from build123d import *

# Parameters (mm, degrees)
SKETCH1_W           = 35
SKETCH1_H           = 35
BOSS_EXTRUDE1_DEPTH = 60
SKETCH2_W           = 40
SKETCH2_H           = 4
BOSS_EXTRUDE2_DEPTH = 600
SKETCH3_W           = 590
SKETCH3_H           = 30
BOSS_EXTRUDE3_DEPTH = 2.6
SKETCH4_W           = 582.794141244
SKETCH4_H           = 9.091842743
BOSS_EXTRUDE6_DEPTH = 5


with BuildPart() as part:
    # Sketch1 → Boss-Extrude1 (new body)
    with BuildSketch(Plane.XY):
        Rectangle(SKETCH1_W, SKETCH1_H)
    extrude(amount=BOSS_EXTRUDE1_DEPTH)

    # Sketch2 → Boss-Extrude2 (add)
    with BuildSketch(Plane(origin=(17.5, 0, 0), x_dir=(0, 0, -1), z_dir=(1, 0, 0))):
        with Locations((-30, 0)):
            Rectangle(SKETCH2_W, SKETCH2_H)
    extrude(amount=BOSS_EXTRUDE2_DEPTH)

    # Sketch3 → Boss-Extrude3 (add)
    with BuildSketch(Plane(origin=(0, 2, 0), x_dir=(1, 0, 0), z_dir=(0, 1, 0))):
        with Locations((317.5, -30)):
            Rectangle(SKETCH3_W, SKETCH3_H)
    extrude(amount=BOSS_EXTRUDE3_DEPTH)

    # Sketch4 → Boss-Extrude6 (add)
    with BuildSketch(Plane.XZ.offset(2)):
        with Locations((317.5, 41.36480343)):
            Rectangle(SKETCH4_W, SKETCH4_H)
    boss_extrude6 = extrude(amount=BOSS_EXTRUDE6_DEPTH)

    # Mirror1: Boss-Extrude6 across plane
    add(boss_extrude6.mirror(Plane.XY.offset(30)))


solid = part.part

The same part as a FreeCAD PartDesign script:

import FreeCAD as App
import Part
import Sketcher
from FreeCAD import Vector


def add_polygon(sketch, points):
    """Adds a closed chain of lines whose ends are joined by coincident constraints."""
    first, n = sketch.GeometryCount, len(points)
    for a, b in zip(points, points[1:] + points[:1]):
        sketch.addGeometry(Part.LineSegment(App.Vector(*a, 0), App.Vector(*b, 0)), False)
    for i in range(n):
        sketch.addConstraint(Sketcher.Constraint("Coincident", first + i, 2, first + (i + 1) % n, 1))

doc = App.newDocument("Part")
body = doc.addObject("PartDesign::Body", "Body")

sketch1 = doc.addObject("Sketcher::SketchObject", "Sketch")
body.addObject(sketch1)
sketch1.AttachmentSupport = (doc.XY_Plane, [""])
sketch1.MapMode = "FlatFace"
add_polygon(sketch1, [(-18, 18), (-18, -18), (18, -18), (18, 18)])
sketch1.addConstraint([
    Sketcher.Constraint("Vertical", 0),
    Sketcher.Constraint("Horizontal", 1),
    Sketcher.Constraint("Vertical", 2),
    Sketcher.Constraint("Horizontal", 3),
    Sketcher.Constraint("Symmetric", 0, 2, 2, 2, -1, 1),
    Sketcher.Constraint("Equal", 3, 0),
    Sketcher.Constraint("DistanceX", 1, 1, 1, 2, 35.0),
])
pad1 = doc.addObject("PartDesign::Pad", "Pad")
body.addObject(pad1)
pad1.Profile = sketch1
pad1.Length = 60

sketch2 = doc.addObject("Sketcher::SketchObject", "Sketch001")
body.addObject(sketch2)
sketch2.AttachmentSupport = (doc.YZ_Plane, [""])
sketch2.MapMode = "FlatFace"
sketch2.AttachmentOffset = App.Placement(Vector(0, 0, 17.5), App.Rotation())
add_polygon(sketch2, [(2, 50), (-2, 50), (-2, 10), (2, 10)])
sketch2.addConstraint([
    Sketcher.Constraint("Horizontal", 0),
    Sketcher.Constraint("Vertical", 1),
    Sketcher.Constraint("Horizontal", 2),
    Sketcher.Constraint("Vertical", 3),
    Sketcher.Constraint("DistanceX", 0, 2, 0, 1, 4.0),
    Sketcher.Constraint("DistanceY", 1, 2, 1, 1, 40.0),
    Sketcher.Constraint("DistanceX", 0, 2, -1, 1, 2.0),
    Sketcher.Constraint("DistanceY", -1, 1, 0, 2, 50.0),
])
pad2 = doc.addObject("PartDesign::Pad", "Pad001")
body.addObject(pad2)
pad2.Profile = sketch2
pad2.Length = 600

sketch3 = doc.addObject("Sketcher::SketchObject", "Sketch002")
body.addObject(sketch3)
sketch3.AttachmentSupport = (doc.XZ_Plane, [""])
sketch3.MapMode = "FlatFace"
sketch3.AttachmentOffset = App.Placement(Vector(0, 0, -2), App.Rotation())
add_polygon(sketch3, [(22, 15), (22, 45), (612, 45), (612, 15)])
sketch3.addConstraint([
    Sketcher.Constraint("Vertical", 0),
    Sketcher.Constraint("Horizontal", 1),
    Sketcher.Constraint("Vertical", 2),
    Sketcher.Constraint("Horizontal", 3),
    Sketcher.Constraint("DistanceX", 1, 1, 1, 2, 590.0),
    Sketcher.Constraint("DistanceY", 0, 1, 0, 2, 30.0),
    Sketcher.Constraint("DistanceY", -1, 1, 0, 2, 45.0),
    Sketcher.Constraint("DistanceX", -1, 1, 0, 2, 22.5),
])
pad3 = doc.addObject("PartDesign::Pad", "Pad002")
body.addObject(pad3)
pad3.Profile = sketch3
pad3.Length = 2.6
pad3.Reversed = True

sketch4 = doc.addObject("Sketcher::SketchObject", "Sketch003")
body.addObject(sketch4)
sketch4.AttachmentSupport = (doc.XZ_Plane, [""])
sketch4.MapMode = "FlatFace"
sketch4.AttachmentOffset = App.Placement(Vector(0, 0, 2), App.Rotation())
add_polygon(sketch4, [(26, 46), (26, 37), (609, 37), (609, 46)])
sketch4.addConstraint([
    Sketcher.Constraint("Vertical", 0),
    Sketcher.Constraint("Horizontal", 1),
    Sketcher.Constraint("Vertical", 2),
    Sketcher.Constraint("Horizontal", 3),
    Sketcher.Constraint("DistanceX", 1, 1, 1, 2, 582.794141),
    Sketcher.Constraint("DistanceY", 0, 2, 0, 1, 9.091843),
    Sketcher.Constraint("DistanceX", -1, 1, 0, 2, 26.102929),
    Sketcher.Constraint("DistanceY", -1, 1, 0, 2, 36.818882),
])
pad4 = doc.addObject("PartDesign::Pad", "Pad003")
body.addObject(pad4)
pad4.Profile = sketch4
pad4.Length = 5
doc.recompute()

datumplane = doc.addObject("PartDesign::Plane", "DatumPlane")
body.addObject(datumplane)
datumplane.AttachmentSupport = (doc.XY_Plane, [""])
datumplane.MapMode = "FlatFace"
datumplane.AttachmentOffset = App.Placement(Vector(0, 0, 30), App.Rotation())
mirrored = doc.addObject("PartDesign::Mirrored", "Mirrored")
body.addObject(mirrored)
mirrored.Originals = [pad4]
mirrored.MirrorPlane = (datumplane, [""])
body.Tip = mirrored

doc.recompute()
